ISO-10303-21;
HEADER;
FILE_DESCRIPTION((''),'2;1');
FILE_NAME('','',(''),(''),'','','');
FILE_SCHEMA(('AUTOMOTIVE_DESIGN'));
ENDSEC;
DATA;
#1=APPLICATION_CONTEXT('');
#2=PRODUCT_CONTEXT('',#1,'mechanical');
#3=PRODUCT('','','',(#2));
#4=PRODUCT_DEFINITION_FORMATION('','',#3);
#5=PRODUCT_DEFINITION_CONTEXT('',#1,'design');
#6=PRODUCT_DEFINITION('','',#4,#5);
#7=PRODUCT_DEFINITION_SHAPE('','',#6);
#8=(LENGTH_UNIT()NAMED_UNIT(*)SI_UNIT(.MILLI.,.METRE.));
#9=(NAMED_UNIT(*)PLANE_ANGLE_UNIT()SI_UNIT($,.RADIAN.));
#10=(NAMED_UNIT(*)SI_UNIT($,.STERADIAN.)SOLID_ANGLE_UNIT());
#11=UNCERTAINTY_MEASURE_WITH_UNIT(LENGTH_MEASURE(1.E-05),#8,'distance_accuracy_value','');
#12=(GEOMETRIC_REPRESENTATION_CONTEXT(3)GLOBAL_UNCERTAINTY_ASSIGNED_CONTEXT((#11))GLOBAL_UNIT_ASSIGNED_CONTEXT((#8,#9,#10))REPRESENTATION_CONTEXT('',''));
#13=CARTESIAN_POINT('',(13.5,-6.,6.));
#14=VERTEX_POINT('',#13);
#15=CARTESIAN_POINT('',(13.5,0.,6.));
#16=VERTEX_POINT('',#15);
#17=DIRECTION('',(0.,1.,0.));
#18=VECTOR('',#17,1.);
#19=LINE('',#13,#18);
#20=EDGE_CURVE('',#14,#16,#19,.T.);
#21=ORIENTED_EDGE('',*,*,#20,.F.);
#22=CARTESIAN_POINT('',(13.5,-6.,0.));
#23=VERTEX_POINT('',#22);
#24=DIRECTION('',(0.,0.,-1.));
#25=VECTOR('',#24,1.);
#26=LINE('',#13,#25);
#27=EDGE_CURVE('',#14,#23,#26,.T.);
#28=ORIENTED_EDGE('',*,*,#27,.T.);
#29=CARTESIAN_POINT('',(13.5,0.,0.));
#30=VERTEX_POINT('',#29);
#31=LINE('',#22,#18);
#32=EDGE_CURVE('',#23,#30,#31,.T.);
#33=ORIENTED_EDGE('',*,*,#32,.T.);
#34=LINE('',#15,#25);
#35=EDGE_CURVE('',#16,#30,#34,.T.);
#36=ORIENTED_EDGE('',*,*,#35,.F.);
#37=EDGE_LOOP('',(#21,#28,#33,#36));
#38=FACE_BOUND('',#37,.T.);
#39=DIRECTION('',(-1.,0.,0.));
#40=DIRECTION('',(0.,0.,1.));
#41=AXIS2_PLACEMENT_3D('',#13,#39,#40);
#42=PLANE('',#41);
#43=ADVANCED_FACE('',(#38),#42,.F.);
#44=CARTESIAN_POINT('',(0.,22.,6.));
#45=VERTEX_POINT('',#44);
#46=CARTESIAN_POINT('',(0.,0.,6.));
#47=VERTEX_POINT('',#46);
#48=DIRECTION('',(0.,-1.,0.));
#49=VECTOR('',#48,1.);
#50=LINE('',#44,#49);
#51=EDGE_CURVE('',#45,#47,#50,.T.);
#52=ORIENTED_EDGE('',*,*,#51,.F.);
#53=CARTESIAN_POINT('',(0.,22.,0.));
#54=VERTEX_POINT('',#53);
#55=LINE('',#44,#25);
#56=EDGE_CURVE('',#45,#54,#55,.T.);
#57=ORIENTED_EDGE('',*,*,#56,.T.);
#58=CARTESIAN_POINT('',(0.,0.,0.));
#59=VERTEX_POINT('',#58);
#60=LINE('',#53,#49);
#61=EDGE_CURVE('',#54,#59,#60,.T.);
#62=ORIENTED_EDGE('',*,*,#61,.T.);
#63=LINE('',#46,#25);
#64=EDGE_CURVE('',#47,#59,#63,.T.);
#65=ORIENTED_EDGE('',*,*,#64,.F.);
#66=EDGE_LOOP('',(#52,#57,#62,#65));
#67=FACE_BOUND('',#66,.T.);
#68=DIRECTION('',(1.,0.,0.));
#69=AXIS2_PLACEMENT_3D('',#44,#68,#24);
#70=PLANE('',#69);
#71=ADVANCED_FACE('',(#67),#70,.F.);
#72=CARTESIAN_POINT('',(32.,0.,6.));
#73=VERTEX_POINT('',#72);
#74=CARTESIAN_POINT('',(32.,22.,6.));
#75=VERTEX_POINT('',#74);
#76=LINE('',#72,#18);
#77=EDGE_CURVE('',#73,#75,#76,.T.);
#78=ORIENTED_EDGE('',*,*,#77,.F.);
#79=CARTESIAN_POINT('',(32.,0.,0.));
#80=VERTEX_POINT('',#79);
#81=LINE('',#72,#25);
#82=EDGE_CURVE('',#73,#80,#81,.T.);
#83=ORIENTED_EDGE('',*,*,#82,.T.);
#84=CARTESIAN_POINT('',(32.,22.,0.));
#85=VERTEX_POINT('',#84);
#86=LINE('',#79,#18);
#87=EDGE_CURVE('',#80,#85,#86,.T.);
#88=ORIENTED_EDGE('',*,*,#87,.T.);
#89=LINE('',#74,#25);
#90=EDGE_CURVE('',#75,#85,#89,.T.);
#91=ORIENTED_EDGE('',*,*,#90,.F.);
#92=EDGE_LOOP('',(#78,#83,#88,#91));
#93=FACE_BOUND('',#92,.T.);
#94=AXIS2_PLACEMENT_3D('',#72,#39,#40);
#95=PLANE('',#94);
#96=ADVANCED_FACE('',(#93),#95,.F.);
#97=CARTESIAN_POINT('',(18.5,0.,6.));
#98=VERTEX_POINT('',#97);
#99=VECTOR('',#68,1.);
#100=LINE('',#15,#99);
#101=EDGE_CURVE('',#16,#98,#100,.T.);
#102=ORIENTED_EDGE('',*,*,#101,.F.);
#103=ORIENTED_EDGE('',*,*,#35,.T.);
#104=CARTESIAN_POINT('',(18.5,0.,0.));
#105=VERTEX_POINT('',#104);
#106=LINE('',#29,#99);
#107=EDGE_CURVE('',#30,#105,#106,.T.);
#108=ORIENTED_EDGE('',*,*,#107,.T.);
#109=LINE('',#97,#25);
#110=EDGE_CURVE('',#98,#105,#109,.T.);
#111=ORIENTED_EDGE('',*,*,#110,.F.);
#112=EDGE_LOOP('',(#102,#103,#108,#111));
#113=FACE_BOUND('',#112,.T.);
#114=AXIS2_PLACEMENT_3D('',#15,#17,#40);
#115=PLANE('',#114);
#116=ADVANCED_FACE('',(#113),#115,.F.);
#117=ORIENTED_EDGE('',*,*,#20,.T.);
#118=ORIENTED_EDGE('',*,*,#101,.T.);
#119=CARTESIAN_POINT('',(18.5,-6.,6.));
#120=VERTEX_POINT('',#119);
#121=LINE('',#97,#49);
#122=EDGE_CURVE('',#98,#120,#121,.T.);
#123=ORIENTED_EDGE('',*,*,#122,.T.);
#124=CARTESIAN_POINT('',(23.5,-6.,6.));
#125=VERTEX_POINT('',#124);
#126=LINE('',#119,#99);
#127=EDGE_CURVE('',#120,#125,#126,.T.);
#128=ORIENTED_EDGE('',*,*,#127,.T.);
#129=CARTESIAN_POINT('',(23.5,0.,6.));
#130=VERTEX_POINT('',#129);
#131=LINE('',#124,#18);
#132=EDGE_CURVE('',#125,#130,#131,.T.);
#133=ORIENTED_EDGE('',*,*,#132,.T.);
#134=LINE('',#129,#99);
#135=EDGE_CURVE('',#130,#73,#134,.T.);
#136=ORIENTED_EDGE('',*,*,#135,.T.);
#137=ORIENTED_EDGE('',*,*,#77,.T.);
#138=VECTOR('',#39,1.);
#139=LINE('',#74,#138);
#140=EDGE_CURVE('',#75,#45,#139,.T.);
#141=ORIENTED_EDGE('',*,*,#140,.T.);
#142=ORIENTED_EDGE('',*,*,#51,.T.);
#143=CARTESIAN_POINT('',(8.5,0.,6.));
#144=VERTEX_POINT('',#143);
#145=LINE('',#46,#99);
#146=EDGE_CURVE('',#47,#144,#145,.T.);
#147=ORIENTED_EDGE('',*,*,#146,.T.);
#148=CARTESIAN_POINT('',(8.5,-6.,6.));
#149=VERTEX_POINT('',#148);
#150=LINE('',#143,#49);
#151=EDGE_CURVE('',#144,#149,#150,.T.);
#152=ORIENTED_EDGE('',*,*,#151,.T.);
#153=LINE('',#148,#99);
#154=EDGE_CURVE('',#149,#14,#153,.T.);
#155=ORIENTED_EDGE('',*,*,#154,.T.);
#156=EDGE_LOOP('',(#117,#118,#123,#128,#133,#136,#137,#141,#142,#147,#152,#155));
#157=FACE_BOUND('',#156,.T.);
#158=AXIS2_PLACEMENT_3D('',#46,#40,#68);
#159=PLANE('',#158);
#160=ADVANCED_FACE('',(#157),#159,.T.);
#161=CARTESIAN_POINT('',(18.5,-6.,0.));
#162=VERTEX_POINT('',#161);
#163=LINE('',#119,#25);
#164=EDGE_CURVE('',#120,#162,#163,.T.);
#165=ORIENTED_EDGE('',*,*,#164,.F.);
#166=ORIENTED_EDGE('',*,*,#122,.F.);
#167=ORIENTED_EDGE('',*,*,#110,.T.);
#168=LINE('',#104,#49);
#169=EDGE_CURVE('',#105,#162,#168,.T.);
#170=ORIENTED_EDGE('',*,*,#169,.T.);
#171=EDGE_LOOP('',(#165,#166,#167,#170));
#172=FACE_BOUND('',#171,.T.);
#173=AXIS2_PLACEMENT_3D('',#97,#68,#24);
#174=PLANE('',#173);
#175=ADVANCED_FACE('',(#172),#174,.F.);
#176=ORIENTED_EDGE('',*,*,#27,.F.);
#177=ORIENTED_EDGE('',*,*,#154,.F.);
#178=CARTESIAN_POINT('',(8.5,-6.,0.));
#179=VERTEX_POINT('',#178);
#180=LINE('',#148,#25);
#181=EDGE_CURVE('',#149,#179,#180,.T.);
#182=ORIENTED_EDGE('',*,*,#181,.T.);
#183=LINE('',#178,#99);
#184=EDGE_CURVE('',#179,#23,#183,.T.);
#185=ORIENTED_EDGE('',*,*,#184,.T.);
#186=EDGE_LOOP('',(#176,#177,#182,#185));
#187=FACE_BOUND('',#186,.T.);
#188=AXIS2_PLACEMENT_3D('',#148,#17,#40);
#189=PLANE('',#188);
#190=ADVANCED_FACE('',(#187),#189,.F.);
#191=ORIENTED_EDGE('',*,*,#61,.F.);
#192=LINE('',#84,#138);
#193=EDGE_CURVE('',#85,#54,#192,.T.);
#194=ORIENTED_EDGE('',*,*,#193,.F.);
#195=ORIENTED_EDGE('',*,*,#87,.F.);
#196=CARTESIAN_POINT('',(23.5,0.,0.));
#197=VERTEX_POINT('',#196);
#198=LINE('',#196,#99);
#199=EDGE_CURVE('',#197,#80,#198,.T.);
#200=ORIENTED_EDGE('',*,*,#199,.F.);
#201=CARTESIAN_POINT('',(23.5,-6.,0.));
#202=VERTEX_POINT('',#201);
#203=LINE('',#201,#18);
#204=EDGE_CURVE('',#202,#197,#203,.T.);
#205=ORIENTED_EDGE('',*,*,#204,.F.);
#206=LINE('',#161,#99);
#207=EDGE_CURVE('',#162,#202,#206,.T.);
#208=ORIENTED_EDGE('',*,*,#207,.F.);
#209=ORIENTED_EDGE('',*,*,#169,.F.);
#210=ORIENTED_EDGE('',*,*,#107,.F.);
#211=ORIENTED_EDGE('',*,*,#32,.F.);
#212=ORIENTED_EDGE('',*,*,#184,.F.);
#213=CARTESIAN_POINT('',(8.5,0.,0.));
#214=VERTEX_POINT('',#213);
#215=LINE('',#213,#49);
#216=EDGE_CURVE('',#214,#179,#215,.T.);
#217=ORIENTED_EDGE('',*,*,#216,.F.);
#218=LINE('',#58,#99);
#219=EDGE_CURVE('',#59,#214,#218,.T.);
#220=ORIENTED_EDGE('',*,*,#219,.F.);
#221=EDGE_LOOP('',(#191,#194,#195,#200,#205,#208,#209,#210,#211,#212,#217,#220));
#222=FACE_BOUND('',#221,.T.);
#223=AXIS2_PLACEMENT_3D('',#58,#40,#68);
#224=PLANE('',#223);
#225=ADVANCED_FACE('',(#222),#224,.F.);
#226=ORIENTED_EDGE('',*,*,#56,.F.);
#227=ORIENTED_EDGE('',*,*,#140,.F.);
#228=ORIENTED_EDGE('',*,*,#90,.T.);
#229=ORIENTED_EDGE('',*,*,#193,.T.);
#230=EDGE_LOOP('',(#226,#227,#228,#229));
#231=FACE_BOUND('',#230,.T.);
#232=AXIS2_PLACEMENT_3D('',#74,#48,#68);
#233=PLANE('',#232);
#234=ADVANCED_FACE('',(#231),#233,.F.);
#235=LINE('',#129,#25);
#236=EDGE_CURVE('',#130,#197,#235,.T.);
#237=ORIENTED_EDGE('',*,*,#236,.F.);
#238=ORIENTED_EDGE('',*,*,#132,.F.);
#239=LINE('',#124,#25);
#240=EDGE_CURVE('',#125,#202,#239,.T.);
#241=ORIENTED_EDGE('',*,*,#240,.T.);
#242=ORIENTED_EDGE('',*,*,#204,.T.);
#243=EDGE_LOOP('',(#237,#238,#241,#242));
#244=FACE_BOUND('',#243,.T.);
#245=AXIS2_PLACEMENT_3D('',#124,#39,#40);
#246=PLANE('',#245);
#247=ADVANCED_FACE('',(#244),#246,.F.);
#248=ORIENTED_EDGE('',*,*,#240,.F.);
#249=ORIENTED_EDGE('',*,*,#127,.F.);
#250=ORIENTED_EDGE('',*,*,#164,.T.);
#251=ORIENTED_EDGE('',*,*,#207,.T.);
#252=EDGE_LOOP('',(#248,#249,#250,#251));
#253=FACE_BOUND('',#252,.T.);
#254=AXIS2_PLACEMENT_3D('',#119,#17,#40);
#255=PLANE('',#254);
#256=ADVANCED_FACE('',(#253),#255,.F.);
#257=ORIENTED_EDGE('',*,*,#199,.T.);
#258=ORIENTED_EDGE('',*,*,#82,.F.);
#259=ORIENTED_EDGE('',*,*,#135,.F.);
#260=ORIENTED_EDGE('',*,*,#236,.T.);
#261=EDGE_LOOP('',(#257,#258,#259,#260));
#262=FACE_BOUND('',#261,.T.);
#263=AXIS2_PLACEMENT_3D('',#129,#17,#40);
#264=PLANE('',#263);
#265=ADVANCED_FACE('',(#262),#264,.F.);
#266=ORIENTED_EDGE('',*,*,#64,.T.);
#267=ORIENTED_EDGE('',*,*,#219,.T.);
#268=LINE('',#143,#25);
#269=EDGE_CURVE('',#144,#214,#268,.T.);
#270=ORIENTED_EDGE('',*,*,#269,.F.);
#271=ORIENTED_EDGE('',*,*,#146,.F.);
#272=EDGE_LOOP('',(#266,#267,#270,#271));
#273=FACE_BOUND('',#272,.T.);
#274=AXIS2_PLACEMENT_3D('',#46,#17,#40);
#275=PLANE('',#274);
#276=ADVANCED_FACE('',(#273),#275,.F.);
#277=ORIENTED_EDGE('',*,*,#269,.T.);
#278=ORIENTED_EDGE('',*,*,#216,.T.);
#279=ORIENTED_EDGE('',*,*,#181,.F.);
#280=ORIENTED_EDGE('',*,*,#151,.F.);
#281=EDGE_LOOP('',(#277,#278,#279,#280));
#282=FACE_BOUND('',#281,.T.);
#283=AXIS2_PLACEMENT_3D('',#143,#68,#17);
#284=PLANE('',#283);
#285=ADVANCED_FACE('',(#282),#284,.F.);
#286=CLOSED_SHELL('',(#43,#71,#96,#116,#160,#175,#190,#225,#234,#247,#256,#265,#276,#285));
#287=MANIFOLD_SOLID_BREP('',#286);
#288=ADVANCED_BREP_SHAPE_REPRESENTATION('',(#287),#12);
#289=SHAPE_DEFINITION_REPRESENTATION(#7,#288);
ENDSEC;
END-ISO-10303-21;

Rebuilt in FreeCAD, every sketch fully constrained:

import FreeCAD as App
import Part
import Sketcher
from FreeCAD import Vector

doc = App.newDocument("Part")
body = doc.addObject("PartDesign::Body", "Body")

# Sketch on XY plane
sketch1 = doc.addObject("Sketcher::SketchObject", "Sketch")
body.addObject(sketch1)
sketch1.AttachmentSupport = (doc.XY_Plane, [""])
sketch1.MapMode = "FlatFace"
sketch1.addGeometry([
    Part.LineSegment(Vector(0, 0, 0), Vector(8, 0, 0)),  # 0
    Part.LineSegment(Vector(8, 0, 0), Vector(8, -6, 0)),  # 1
    Part.LineSegment(Vector(8, -6, 0), Vector(14, -6, 0)),  # 2
    Part.LineSegment(Vector(14, -6, 0), Vector(14, 0, 0)),  # 3
    Part.LineSegment(Vector(14, 0, 0), Vector(18, 0, 0)),  # 4
    Part.LineSegment(Vector(18, 0, 0), Vector(18, -6, 0)),  # 5
    Part.LineSegment(Vector(18, -6, 0), Vector(24, -6, 0)),  # 6
    Part.LineSegment(Vector(24, -6, 0), Vector(24, 0, 0)),  # 7
    Part.LineSegment(Vector(24, 0, 0), Vector(32, 0, 0)),  # 8
    Part.LineSegment(Vector(32, 0, 0), Vector(32, 22, 0)),  # 9
    Part.LineSegment(Vector(32, 22, 0), Vector(0, 22, 0)),  # 10
    Part.LineSegment(Vector(0, 22, 0), Vector(0, 0, 0)),  # 11
], False)
sketch1.addConstraint([
    Sketcher.Constraint("Coincident", 0, 2, 1, 1),
    Sketcher.Constraint("Coincident", 1, 2, 2, 1),
    Sketcher.Constraint("Coincident", 2, 2, 3, 1),
    Sketcher.Constraint("Coincident", 3, 2, 4, 1),
    Sketcher.Constraint("Coincident", 4, 2, 5, 1),
    Sketcher.Constraint("Coincident", 5, 2, 6, 1),
    Sketcher.Constraint("Coincident", 6, 2, 7, 1),
    Sketcher.Constraint("Coincident", 7, 2, 8, 1),
    Sketcher.Constraint("Coincident", 8, 2, 9, 1),
    Sketcher.Constraint("Coincident", 9, 2, 10, 1),
    Sketcher.Constraint("Coincident", 10, 2, 11, 1),
    Sketcher.Constraint("Coincident", 11, 2, 0, 1),
    Sketcher.Constraint("Horizontal", 0),
    Sketcher.Constraint("Vertical", 1),
    Sketcher.Constraint("Horizontal", 2),
    Sketcher.Constraint("Vertical", 3),
    Sketcher.Constraint("Horizontal", 4),
    Sketcher.Constraint("Vertical", 5),
    Sketcher.Constraint("Horizontal", 6),
    Sketcher.Constraint("Vertical", 7),
    Sketcher.Constraint("Horizontal", 8),
    Sketcher.Constraint("Vertical", 9),
    Sketcher.Constraint("Horizontal", 10),
    Sketcher.Constraint("Vertical", 11),
    Sketcher.Constraint("Coincident", 11, 2, -1, 1),
    Sketcher.Constraint("PointOnObject", 3, 2, -1),
    Sketcher.Constraint("PointOnObject", 7, 2, -1),
    Sketcher.Constraint("Horizontal", 2, 2, 5, 2),
    Sketcher.Constraint("Equal", 2, 4),
    Sketcher.Constraint("Equal", 4, 6),
    Sketcher.Constraint("Equal", 0, 8),
    Sketcher.Constraint("DistanceX", 2, 1, 2, 2, 5.0),
    Sketcher.Constraint("DistanceX", 10, 2, 10, 1, 32.0),
    Sketcher.Constraint("DistanceY", 1, 2, 1, 1, 6.0),
    Sketcher.Constraint("DistanceY", 9, 1, 9, 2, 22.0),
])
pad1 = doc.addObject("PartDesign::Pad", "Pad")
body.addObject(pad1)
pad1.Profile = sketch1
pad1.Length = 6

doc.recompute()
